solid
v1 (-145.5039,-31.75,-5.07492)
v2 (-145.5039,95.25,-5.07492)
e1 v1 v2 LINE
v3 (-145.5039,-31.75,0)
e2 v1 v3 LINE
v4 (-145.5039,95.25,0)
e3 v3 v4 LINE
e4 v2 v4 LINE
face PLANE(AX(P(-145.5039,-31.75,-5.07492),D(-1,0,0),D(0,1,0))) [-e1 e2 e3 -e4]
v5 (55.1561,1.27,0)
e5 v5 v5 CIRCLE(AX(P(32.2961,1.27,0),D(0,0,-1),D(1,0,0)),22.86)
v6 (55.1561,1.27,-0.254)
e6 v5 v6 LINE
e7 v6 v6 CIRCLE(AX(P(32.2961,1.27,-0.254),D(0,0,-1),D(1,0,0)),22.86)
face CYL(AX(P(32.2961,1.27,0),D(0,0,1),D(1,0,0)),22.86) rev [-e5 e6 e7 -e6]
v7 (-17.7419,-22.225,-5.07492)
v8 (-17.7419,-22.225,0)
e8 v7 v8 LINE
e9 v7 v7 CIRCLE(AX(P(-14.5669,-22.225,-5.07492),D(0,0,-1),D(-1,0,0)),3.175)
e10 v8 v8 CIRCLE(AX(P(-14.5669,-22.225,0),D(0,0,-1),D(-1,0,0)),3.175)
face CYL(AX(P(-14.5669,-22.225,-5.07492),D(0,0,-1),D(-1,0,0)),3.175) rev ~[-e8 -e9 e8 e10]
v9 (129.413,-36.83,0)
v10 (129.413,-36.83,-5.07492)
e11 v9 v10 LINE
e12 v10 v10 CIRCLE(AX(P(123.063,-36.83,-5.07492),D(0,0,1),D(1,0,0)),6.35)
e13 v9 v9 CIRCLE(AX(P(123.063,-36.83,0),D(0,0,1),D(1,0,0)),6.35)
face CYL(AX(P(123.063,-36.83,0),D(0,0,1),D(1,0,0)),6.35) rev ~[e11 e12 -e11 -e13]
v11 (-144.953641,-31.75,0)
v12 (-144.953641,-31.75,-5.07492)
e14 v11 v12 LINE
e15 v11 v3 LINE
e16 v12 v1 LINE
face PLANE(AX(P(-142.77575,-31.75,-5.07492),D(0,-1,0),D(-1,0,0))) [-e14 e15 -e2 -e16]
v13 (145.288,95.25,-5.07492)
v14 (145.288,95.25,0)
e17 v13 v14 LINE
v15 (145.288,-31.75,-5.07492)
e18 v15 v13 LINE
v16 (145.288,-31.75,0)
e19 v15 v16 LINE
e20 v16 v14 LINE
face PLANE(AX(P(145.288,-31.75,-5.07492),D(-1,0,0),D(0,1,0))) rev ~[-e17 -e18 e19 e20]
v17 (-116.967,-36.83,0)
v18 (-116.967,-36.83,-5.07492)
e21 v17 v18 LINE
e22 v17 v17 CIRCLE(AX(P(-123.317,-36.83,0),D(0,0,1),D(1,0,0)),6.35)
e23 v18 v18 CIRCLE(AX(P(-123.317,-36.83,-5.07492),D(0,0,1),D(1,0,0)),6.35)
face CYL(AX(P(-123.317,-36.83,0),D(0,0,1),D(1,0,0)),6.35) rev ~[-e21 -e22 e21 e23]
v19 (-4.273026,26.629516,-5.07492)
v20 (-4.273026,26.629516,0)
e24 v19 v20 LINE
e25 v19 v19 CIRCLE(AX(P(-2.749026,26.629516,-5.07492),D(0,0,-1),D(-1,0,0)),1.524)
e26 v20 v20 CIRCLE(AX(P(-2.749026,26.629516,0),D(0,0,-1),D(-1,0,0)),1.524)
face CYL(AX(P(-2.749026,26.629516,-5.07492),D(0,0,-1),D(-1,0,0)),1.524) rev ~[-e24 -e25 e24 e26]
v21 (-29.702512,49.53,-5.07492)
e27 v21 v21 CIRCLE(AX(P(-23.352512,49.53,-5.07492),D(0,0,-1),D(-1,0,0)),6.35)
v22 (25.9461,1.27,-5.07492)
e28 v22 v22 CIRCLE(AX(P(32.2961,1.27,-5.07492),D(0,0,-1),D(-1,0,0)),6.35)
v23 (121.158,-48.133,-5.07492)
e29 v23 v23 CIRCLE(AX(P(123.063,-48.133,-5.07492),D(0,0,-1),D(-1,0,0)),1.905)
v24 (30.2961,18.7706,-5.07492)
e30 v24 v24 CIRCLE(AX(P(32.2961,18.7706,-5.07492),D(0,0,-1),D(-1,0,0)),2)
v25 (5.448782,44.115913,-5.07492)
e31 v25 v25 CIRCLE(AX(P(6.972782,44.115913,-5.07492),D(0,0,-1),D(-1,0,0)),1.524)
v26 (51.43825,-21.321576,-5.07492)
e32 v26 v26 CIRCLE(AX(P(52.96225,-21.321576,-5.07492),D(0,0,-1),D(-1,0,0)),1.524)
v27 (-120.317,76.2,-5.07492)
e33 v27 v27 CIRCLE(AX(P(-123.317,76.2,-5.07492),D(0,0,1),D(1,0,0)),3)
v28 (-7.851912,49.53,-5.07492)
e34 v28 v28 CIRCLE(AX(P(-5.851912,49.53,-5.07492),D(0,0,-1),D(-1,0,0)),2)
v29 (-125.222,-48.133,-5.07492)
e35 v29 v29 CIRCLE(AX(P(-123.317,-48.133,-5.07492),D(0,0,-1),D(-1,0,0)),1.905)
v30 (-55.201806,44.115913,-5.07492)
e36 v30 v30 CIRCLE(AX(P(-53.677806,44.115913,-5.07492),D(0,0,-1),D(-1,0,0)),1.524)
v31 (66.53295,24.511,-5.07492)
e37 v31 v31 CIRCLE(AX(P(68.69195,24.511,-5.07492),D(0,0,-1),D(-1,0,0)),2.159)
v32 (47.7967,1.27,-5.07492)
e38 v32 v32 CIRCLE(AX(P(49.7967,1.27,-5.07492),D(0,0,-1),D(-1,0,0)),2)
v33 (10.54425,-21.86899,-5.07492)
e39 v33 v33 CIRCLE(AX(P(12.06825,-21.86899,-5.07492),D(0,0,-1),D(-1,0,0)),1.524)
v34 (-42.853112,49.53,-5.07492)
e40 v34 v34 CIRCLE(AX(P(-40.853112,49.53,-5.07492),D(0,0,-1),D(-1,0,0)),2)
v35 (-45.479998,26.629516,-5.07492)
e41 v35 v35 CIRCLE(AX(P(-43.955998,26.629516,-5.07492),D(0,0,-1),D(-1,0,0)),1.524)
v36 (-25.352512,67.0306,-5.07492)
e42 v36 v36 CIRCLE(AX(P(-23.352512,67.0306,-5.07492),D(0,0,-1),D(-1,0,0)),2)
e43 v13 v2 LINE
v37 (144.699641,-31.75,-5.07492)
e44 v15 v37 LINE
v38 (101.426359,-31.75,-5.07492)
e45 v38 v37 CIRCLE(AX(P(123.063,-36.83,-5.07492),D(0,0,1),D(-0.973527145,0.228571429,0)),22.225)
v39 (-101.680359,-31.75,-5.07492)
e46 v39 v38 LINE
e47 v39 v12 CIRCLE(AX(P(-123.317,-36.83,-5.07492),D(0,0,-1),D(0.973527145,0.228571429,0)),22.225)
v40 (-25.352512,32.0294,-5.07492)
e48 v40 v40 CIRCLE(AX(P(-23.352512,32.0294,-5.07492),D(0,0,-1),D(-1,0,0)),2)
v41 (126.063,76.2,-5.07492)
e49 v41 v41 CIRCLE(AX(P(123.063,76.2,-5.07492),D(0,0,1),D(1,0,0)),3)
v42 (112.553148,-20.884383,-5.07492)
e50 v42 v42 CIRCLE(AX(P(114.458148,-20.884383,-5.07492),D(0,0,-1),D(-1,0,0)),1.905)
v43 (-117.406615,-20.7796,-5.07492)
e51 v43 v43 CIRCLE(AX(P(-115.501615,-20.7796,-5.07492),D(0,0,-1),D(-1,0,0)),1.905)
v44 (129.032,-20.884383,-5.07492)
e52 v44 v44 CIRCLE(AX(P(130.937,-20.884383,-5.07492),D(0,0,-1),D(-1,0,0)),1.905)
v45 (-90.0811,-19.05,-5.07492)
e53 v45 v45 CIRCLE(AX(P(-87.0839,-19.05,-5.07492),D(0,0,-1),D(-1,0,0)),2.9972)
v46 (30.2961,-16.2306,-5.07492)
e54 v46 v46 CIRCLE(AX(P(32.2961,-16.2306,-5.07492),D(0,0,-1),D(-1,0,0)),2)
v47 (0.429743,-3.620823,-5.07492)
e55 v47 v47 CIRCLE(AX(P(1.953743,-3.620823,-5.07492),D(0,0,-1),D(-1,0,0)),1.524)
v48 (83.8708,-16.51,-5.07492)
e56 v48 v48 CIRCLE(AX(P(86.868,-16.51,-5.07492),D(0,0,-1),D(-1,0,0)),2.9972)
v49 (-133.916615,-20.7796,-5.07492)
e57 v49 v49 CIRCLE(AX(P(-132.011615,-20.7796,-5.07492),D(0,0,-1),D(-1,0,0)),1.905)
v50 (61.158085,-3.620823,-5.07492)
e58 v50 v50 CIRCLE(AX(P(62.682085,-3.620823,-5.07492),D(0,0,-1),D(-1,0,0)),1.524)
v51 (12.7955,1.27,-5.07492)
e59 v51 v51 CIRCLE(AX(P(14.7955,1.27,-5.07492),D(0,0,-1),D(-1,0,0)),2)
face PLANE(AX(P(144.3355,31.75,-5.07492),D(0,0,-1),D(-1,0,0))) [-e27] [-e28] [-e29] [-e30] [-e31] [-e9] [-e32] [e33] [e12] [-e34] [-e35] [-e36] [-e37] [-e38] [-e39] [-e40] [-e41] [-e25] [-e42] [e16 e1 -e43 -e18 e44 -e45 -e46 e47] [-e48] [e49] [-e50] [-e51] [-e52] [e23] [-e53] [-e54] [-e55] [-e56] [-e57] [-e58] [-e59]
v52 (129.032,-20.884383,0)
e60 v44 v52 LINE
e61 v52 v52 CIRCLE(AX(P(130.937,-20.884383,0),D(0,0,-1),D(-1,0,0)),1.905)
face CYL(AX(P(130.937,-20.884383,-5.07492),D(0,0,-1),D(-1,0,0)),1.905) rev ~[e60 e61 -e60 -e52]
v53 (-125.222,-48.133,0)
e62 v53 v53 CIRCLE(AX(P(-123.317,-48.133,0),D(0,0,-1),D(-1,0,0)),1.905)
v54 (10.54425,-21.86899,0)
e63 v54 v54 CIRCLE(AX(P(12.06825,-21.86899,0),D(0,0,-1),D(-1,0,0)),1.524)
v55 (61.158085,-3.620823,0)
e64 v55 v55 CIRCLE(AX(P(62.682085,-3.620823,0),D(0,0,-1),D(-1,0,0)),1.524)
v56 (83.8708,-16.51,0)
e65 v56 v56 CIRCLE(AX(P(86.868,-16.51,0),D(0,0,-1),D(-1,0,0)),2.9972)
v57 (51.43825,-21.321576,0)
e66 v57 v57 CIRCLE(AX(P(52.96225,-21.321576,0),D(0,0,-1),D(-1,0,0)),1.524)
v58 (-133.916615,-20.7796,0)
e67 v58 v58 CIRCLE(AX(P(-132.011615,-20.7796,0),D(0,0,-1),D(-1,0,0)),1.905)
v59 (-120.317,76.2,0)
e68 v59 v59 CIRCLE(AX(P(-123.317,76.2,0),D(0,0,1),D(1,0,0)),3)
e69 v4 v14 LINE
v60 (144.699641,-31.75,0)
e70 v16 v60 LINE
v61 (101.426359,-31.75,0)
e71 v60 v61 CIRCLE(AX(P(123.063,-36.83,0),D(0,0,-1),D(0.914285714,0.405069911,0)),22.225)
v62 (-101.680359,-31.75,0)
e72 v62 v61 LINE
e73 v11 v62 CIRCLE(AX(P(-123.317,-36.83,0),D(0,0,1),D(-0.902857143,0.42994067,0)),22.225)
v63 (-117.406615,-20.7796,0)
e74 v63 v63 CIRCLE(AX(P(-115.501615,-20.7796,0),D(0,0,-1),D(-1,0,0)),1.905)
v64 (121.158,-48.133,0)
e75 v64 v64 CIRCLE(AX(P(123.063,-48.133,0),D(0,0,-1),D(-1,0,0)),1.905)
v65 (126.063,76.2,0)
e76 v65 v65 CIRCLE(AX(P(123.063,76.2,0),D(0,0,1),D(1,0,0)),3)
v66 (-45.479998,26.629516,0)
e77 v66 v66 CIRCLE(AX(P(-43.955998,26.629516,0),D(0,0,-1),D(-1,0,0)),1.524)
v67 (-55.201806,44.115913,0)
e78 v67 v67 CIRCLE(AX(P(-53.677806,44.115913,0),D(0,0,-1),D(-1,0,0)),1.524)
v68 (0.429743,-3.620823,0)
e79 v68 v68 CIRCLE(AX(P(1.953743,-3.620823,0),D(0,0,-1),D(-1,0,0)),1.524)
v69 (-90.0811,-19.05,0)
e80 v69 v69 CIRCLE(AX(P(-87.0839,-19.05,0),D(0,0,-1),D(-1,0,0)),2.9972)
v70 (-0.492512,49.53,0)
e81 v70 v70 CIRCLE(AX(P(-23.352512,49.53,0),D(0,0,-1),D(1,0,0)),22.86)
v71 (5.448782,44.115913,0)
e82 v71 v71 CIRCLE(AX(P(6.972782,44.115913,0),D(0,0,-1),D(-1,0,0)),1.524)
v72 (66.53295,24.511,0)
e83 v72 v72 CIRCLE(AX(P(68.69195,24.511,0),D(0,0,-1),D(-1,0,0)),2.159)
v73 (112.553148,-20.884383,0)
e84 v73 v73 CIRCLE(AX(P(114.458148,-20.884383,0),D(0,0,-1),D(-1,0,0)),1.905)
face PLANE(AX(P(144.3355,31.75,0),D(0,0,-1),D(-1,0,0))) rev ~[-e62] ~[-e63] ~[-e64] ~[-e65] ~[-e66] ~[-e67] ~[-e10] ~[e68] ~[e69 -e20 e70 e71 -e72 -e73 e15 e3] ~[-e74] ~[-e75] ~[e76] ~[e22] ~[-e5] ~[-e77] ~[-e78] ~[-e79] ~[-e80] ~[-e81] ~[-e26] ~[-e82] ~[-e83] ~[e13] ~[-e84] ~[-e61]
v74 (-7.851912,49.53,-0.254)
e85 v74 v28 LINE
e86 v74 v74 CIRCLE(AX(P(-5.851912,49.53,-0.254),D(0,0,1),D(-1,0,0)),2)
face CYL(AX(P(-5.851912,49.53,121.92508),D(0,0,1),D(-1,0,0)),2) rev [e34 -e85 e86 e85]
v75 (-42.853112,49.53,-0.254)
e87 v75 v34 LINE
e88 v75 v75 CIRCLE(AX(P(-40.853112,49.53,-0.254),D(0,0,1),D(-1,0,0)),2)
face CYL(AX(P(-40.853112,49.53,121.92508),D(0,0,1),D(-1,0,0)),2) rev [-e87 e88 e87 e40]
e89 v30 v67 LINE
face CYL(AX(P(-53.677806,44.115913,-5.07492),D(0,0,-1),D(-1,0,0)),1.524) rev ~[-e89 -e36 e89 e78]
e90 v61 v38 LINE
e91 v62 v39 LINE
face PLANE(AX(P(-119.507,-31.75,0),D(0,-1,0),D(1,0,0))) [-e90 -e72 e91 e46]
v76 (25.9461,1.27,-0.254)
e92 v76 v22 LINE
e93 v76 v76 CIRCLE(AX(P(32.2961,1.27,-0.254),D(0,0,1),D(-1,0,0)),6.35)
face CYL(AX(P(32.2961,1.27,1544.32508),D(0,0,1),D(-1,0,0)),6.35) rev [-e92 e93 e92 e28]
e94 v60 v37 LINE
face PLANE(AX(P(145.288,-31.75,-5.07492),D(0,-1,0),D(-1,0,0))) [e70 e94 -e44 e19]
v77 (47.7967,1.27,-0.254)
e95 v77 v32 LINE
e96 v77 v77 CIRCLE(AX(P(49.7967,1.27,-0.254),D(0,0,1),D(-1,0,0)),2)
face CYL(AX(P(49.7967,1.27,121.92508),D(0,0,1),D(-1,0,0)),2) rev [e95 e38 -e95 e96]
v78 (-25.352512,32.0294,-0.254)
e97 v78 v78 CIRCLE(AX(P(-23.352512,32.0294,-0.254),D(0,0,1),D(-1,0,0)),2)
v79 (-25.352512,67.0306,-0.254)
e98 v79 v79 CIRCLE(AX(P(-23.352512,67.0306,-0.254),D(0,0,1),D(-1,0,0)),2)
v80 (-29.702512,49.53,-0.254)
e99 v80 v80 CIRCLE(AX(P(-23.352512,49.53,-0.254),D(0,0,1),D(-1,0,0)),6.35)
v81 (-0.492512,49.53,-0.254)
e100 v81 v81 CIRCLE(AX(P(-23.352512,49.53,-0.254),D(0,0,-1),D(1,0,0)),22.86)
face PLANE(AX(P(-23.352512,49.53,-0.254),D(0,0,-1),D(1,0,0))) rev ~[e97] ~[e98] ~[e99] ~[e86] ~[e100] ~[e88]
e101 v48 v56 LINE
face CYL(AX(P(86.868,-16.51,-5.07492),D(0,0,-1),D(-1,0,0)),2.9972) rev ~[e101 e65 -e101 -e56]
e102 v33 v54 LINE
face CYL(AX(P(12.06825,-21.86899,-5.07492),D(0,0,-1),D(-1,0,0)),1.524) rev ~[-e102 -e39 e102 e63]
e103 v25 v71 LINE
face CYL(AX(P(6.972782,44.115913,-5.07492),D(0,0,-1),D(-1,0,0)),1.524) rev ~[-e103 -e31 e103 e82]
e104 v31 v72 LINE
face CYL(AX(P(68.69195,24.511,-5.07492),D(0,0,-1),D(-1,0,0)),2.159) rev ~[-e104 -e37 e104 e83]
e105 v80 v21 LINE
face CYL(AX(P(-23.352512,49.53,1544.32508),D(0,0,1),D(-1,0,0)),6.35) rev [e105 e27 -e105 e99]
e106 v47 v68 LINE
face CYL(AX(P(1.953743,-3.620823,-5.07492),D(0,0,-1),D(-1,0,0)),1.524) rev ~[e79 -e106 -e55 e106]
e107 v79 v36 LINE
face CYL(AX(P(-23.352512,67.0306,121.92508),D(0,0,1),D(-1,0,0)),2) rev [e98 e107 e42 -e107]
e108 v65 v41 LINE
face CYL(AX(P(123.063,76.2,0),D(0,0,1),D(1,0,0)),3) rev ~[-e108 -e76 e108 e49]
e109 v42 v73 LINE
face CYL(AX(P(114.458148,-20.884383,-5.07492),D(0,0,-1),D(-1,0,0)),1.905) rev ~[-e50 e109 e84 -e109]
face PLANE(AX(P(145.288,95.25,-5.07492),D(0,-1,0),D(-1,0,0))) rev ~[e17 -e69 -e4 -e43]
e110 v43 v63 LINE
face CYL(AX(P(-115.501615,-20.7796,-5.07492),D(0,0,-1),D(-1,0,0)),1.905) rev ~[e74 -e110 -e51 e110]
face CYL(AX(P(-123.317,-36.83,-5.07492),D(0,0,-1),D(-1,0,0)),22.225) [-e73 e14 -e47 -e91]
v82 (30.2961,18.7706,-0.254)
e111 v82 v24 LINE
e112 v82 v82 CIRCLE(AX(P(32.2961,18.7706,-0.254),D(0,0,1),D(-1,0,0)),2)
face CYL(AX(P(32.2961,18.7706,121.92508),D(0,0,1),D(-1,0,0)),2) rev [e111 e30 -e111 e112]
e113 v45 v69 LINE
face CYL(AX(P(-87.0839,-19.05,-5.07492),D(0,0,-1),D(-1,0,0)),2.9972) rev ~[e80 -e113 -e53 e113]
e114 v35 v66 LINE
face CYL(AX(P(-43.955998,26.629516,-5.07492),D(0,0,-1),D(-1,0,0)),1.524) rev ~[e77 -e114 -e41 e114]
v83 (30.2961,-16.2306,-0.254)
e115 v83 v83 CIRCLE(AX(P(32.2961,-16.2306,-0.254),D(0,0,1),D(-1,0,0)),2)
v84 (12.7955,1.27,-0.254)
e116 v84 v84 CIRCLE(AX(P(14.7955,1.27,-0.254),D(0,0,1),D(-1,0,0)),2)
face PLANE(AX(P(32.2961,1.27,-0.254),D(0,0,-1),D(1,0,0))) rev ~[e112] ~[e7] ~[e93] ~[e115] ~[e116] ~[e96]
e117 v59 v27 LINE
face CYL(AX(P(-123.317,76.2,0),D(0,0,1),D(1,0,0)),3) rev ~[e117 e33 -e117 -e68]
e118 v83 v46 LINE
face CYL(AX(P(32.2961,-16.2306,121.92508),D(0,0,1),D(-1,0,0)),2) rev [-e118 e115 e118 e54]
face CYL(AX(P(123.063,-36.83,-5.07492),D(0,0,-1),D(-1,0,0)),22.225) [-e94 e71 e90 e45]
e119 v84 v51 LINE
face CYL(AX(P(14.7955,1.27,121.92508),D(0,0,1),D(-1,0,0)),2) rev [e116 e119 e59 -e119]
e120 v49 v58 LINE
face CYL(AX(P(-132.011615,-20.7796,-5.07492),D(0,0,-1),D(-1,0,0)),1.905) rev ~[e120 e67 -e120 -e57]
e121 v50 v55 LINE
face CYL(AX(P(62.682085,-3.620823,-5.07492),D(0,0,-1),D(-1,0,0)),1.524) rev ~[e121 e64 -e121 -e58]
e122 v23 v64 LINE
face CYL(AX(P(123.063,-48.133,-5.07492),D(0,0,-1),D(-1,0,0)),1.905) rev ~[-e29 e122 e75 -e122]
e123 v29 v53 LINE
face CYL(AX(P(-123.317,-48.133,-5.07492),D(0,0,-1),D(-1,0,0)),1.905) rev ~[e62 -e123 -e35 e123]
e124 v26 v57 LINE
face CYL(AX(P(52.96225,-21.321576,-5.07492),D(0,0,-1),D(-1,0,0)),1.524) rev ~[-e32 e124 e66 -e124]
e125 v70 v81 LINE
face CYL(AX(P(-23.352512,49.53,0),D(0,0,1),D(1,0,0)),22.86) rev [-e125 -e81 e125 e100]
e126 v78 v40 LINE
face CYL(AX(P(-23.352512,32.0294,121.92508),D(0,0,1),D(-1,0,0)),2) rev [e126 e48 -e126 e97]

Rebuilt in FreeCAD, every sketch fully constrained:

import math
import FreeCAD as App
import Part
import Sketcher
Q = App.Units.Quantity


def add_polygon(sketch, points):
    """Adds a closed chain of lines whose ends are joined by coincident constraints."""
    first, n = sketch.GeometryCount, len(points)
    for a, b in zip(points, points[1:] + points[:1]):
        sketch.addGeometry(Part.LineSegment(App.Vector(*a, 0), App.Vector(*b, 0)), False)
    for i in range(n):
        sketch.addConstraint(Sketcher.Constraint("Coincident", first + i, 2, first + (i + 1) % n, 1))

doc = App.newDocument("Part")
params = doc.addObject("Spreadsheet::Sheet", "Params")
for row, (alias, value) in enumerate([
    ("sketch1_height", "5 in"),
    ("sketch1_radius", "0.25 in"),
    ("sketch1_width", "9.4 in"),
    ("sketch1_width2", "0.64 in"),
    ("sketch1_width3", "0.65 in"),
    ("pad1_length", "0.1998 in"),
    ("sketch2_diameter", "1.75 in"),
    ("pad2_length", "0.1998 in"),
    ("sketch3_diameter", "0.5 in"),
    ("pocket1_length", "0.22 in"),
    ("sketch4_height", "5 in"),
    ("pad3_length", "0.1998 in"),
    ("sketch5_height", "5 in"),
    ("sketch5_width", "0.075 in"),
    ("pad4_length", "0.1998 in"),
    ("pocket2_length", "15.75 in"),
    ("sketch7_diameter", "1.8 in"),
    ("sketch7_diameter2", "0.5 in"),
    ("pocket3_length", "0.01 in"),
    ("pocket4_length", "5 in"),
    ("sketch9_diameter", "0.236 in"),
    ("pocket5_length", "6 in"),
    ("sketch10_diameter", "0.5 in"),
    ("pocket6_length", "61 in"),
    ("sketch11_diameter", "0.25 in"),
    ("sketch11_diameter2", "0.17 in"),
    ("sketch11_diameter3", "0.12 in"),
    ("pocket7_length", "0.25 in"),
    ("sketch12_diameter", "0.15 in"),
    ("pocket8_length", "0.25 in"),
], start=1):
    params.set(f"A{row}", alias)
    params.set(f"B{row}", "=" + value)
    params.setAlias(f"B{row}", alias)

body = doc.addObject("PartDesign::Body", "Body")

sketch1 = body.newObject("Sketcher::SketchObject", "Sketch")
sketch1.AttachmentSupport = (doc.getObject("XY_Plane"), [""])
sketch1.MapMode = "FlatFace"
sketch1.addGeometry([
    Part.LineSegment(App.Vector(-143.383, -31.75, 0), App.Vector(-127.127, -31.75, 0)),
    Part.ArcOfCircle(Part.Circle(App.Vector(-123.317, -36.83, 0), App.Vector(0, 0, 1), 6.35), math.radians(53.130102), math.radians(126.869898)),
    Part.LineSegment(App.Vector(-119.507, -31.75, 0), App.Vector(119.253, -31.75, 0)),
    Part.ArcOfCircle(Part.Circle(App.Vector(123.063, -36.83, 0), App.Vector(0, 0, 1), 6.35), math.radians(53.130102), math.radians(126.869898)),
    Part.LineSegment(App.Vector(126.873, -31.75, 0), App.Vector(143.383, -31.75, 0)),
    Part.LineSegment(App.Vector(143.383, -31.75, 0), App.Vector(143.383, 95.25, 0)),
    Part.LineSegment(App.Vector(143.383, 95.25, 0), App.Vector(-143.383, 95.25, 0)),
    Part.LineSegment(App.Vector(-143.383, 95.25, 0), App.Vector(-143.383, -31.75, 0)),
], False)
sketch1.addConstraint([
    Sketcher.Constraint("Coincident", 0, 2, 1, 2),
    Sketcher.Constraint("Coincident", 1, 1, 2, 1),
    Sketcher.Constraint("Coincident", 2, 2, 3, 2),
    Sketcher.Constraint("Coincident", 3, 1, 4, 1),
    Sketcher.Constraint("Coincident", 4, 2, 5, 1),
    Sketcher.Constraint("Coincident", 5, 2, 6, 1),
    Sketcher.Constraint("Coincident", 6, 2, 7, 1),
    Sketcher.Constraint("Coincident", 7, 2, 0, 1),
    Sketcher.Constraint("Horizontal", 0),
    Sketcher.Constraint("Horizontal", 2),
    Sketcher.Constraint("Horizontal", 4),
    Sketcher.Constraint("Vertical", 5),
    Sketcher.Constraint("Horizontal", 6),
    Sketcher.Constraint("Vertical", 7),
    Sketcher.Constraint("Equal", 1, 3),
    Sketcher.Constraint("Symmetric", 4, 2, 7, 2, -2),
    Sketcher.Constraint("Horizontal", 1, 3, 3, 3),
    Sketcher.Constraint("Horizontal", 0, 2, 1, 1),
    Sketcher.Constraint("DistanceY", 5, 1, 5, 2, Q("5 in")),
    Sketcher.Constraint("Radius", 1, Q("0.25 in")),
    Sketcher.Constraint("DistanceX", 2, 1, 2, 2, Q("9.4 in")),
    Sketcher.Constraint("DistanceX", 0, 2, 3, 1, Q("10 in")),
    Sketcher.Constraint("DistanceX", 0, 1, 0, 2, Q("0.64 in")),
    Sketcher.Constraint("DistanceX", 4, 1, 4, 2, Q("0.65 in")),
    Sketcher.Constraint("DistanceY", 1, 3, -1, 1, Q("1.45 in")),
])
sketch1.setExpression("Constraints[18]", "Params.sketch1_height")
sketch1.setExpression("Constraints[19]", "Params.sketch1_radius")
sketch1.setExpression("Constraints[20]", "Params.sketch1_width")
sketch1.setExpression("Constraints[22]", "Params.sketch1_width2")
sketch1.setExpression("Constraints[23]", "Params.sketch1_width3")
pad1 = body.newObject("PartDesign::Pad", "Pad")
pad1.Profile = sketch1
pad1.setExpression("Length", "Params.pad1_length")
pad1.Reversed = True

sketch2 = body.newObject("Sketcher::SketchObject", "Sketch001")
sketch2.AttachmentSupport = (doc.getObject("XY_Plane"), [""])
sketch2.MapMode = "FlatFace"
sketch2.AttachmentOffset = App.Placement(App.Vector(0, 0, -0.1998 * 25.4), App.Rotation())
sketch2.addGeometry([
    Part.Circle(App.Vector(123.063, -36.83, 0), App.Vector(0, 0, 1), 22.225),
    Part.Circle(App.Vector(-123.317, -36.83, 0), App.Vector(0, 0, 1), 22.225),
], False)
sketch2.addConstraint([
    Sketcher.Constraint("Equal", 0, 1),
    Sketcher.Constraint("Horizontal", 0, 3, 1, 3),
    Sketcher.Constraint("Diameter", 0, Q("1.75 in")),
    Sketcher.Constraint("DistanceX", 1, 3, 0, 3, Q("9.7 in")),
    Sketcher.Constraint("DistanceY", 0, 3, -1, 1, Q("1.45 in")),
    Sketcher.Constraint("DistanceX", -1, 1, 0, 3, Q("4.845 in")),
])
sketch2.setExpression("Constraints[2]", "Params.sketch2_diameter")
pad2 = body.newObject("PartDesign::Pad", "Pad001")
pad2.Profile = sketch2
pad2.setExpression("Length", "Params.pad2_length")

sketch3 = body.newObject("Sketcher::SketchObject", "Sketch002")
sketch3.AttachmentSupport = (doc.getObject("XY_Plane"), [""])
sketch3.MapMode = "FlatFace"
sketch3.addGeometry([
    Part.Circle(App.Vector(-123.317, -36.83, 0), App.Vector(0, 0, 1), 6.35),
    Part.Circle(App.Vector(123.063, -36.83, 0), App.Vector(0, 0, 1), 6.35),
], False)
sketch3.addConstraint([
    Sketcher.Constraint("Equal", 0, 1),
    Sketcher.Constraint("Horizontal", 0, 3, 1, 3),
    Sketcher.Constraint("Diameter", 0, Q("0.5 in")),
    Sketcher.Constraint("DistanceX", 0, 3, 1, 3, Q("9.7 in")),
    Sketcher.Constraint("DistanceY", 0, 3, -1, 1, Q("1.45 in")),
    Sketcher.Constraint("DistanceX", 0, 3, -1, 1, Q("4.855 in")),
])
sketch3.setExpression("Constraints[2]", "Params.sketch3_diameter")
pocket1 = body.newObject("PartDesign::Pocket", "Pocket")
pocket1.Profile = sketch3
pocket1.setExpression("Length", "Params.pocket1_length")

sketch4 = body.newObject("Sketcher::SketchObject", "Sketch003")
sketch4.AttachmentSupport = (doc.getObject("XY_Plane"), [""])
sketch4.MapMode = "FlatFace"
sketch4.AttachmentOffset = App.Placement(App.Vector(0, 0, -0.1998 * 25.4), App.Rotation())
add_polygon(sketch4, [(-142.77575, 95.25), (-142.77575, -31.75), (-145.5039, -31.75), (-145.5039, 95.25)])
sketch4.addConstraint([
    Sketcher.Constraint("Vertical", 0),
    Sketcher.Constraint("Horizontal", 1),
    Sketcher.Constraint("Vertical", 2),
    Sketcher.Constraint("Horizontal", 3),
    Sketcher.Constraint("DistanceY", 0, 2, 0, 1, Q("5 in")),
    Sketcher.Constraint("DistanceY", 0, 2, -1, 1, Q("1.25 in")),
    Sketcher.Constraint("DistanceX", 1, 2, -1, 1, Q("5.7285 in")),
    Sketcher.Constraint("DistanceX", 1, 2, 1, 1, 2.72815),
])
sketch4.setExpression("Constraints[8]", "Params.sketch4_height")
pad3 = body.newObject("PartDesign::Pad", "Pad002")
pad3.Profile = sketch4
pad3.setExpression("Length", "Params.pad3_length")

sketch5 = body.newObject("Sketcher::SketchObject", "Sketch004")
sketch5.AttachmentSupport = (doc.getObject("XY_Plane"), [""])
sketch5.MapMode = "FlatFace"
sketch5.AttachmentOffset = App.Placement(App.Vector(0, 0, -0.1998 * 25.4), App.Rotation())
add_polygon(sketch5, [(145.288, 95.25), (145.288, -31.75), (143.383, -31.75), (143.383, 95.25)])
sketch5.addConstraint([
    Sketcher.Constraint("Vertical", 0),
    Sketcher.Constraint("Horizontal", 1),
    Sketcher.Constraint("Vertical", 2),
    Sketcher.Constraint("Horizontal", 3),
    Sketcher.Constraint("DistanceY", 0, 2, 0, 1, Q("5 in")),
    Sketcher.Constraint("DistanceX", 1, 2, 1, 1, Q("0.075 in")),
    Sketcher.Constraint("DistanceX", -1, 1, 0, 2, Q("5.72 in")),
    Sketcher.Constraint("DistanceY", 0, 2, -1, 1, Q("1.25 in")),
])
sketch5.setExpression("Constraints[8]", "Params.sketch5_height")
sketch5.setExpression("Constraints[9]", "Params.sketch5_width")
pad4 = body.newObject("PartDesign::Pad", "Pad003")
pad4.Profile = sketch5
pad4.setExpression("Length", "Params.pad4_length")

sketch6 = body.newObject("Sketcher::SketchObject", "Sketch005")
sketch6.AttachmentSupport = (doc.getObject("XY_Plane"), [""])
sketch6.MapMode = "FlatFace"
sketch6.addGeometry([
    Part.Circle(App.Vector(-123.317, 76.2, 0), App.Vector(0, 0, 1), 3),
    Part.Circle(App.Vector(123.063, 76.2, 0), App.Vector(0, 0, 1), 3),
], False)
sketch6.addConstraint([
    Sketcher.Constraint("Equal", 0, 1),
    Sketcher.Constraint("Horizontal", 0, 3, 1, 3),
    Sketcher.Constraint("DistanceY", -1, 1, 0, 3, Q("3 in")),
    Sketcher.Constraint("DistanceX", 0, 3, 1, 3, Q("9.7 in")),
    Sketcher.Constraint("Diameter", 0, 6.0),
    Sketcher.Constraint("DistanceX", 0, 3, -1, 1, Q("4.855 in")),
])
pocket2 = body.newObject("PartDesign::Pocket", "Pocket001")
pocket2.Profile = sketch6
pocket2.setExpression("Length", "Params.pocket2_length")

sketch7 = body.newObject("Sketcher::SketchObject", "Sketch006")
sketch7.AttachmentSupport = (doc.getObject("XY_Plane"), [""])
sketch7.MapMode = "FlatFace"
sketch7.addGeometry([
    Part.Circle(App.Vector(-23.352512, 49.53, 0), App.Vector(0, 0, 1), 22.86),
    Part.Circle(App.Vector(-40.853112, 49.53, 0), App.Vector(0, 0, 1), 2),
    Part.Circle(App.Vector(-23.352512, 67.0306, 0), App.Vector(0, 0, 1), 2),
    Part.Circle(App.Vector(-23.352512, 49.53, 0), App.Vector(0, 0, 1), 6.35),
    Part.Circle(App.Vector(-5.851912, 49.53, 0), App.Vector(0, 0, 1), 2),
    Part.Circle(App.Vector(-23.352512, 32.0294, 0), App.Vector(0, 0, 1), 2),
    Part.Circle(App.Vector(32.2961, 1.27, 0), App.Vector(0, 0, 1), 22.86),
    Part.Circle(App.Vector(32.2961, 18.7706, 0), App.Vector(0, 0, 1), 2),
    Part.Circle(App.Vector(14.7955, 1.27, 0), App.Vector(0, 0, 1), 2),
    Part.Circle(App.Vector(32.2961, 1.27, 0), App.Vector(0, 0, 1), 6.35),
    Part.Circle(App.Vector(49.7967, 1.27, 0), App.Vector(0, 0, 1), 2),
    Part.Circle(App.Vector(32.2961, -16.2306, 0), App.Vector(0, 0, 1), 2),
], False)
sketch7.addConstraint([
    Sketcher.Constraint("Coincident", 3, 3, 0, 3),
    Sketcher.Constraint("Coincident", 9, 3, 6, 3),
    Sketcher.Constraint("Equal", 1, 2),
    Sketcher.Constraint("Equal", 2, 4),
    Sketcher.Constraint("Equal", 4, 5),
    Sketcher.Constraint("Equal", 0, 6),
    Sketcher.Constraint("Equal", 5, 7),
    Sketcher.Constraint("Equal", 7, 8),
    Sketcher.Constraint("Equal", 3, 9),
    Sketcher.Constraint("Equal", 8, 10),
    Sketcher.Constraint("Equal", 10, 11),
    Sketcher.Constraint("Horizontal", 0, 3, 1, 3),
    Sketcher.Constraint("Horizontal", 3, 3, 4, 3),
    Sketcher.Constraint("Horizontal", 6, 3, 8, 3),
    Sketcher.Constraint("Horizontal", 9, 3, 10, 3),
    Sketcher.Constraint("Vertical", 0, 3, 2, 3),
    Sketcher.Constraint("Vertical", 3, 3, 5, 3),
    Sketcher.Constraint("Vertical", 6, 3, 7, 3),
    Sketcher.Constraint("Vertical", 9, 3, 11, 3),
    Sketcher.Constraint("Diameter", 0, Q("1.8 in")),
    Sketcher.Constraint("Diameter", 3, Q("0.5 in")),
    Sketcher.Constraint("DistanceY", 6, 3, 4, 3, Q("1.9 in")),
    Sketcher.Constraint("Diameter", 1, 4.0),
    Sketcher.Constraint("DistanceY", -1, 1, 0, 3, Q("1.95 in")),
    Sketcher.Constraint("DistanceY", -1, 1, 2, 3, Q("2.639 in")),
    Sketcher.Constraint("DistanceY", -1, 1, 5, 3, Q("1.261 in")),
    Sketcher.Constraint("DistanceY", -1, 1, 7, 3, Q("0.739 in")),
    Sketcher.Constraint("DistanceY", 11, 3, -1, 1, Q("0.639 in")),
    Sketcher.Constraint("DistanceX", 1, 3, 0, 3, Q("0.689 in")),
    Sketcher.Constraint("DistanceX", 0, 3, 4, 3, Q("0.689 in")),
    Sketcher.Constraint("DistanceX", 8, 3, 6, 3, Q("0.689 in")),
    Sketcher.Constraint("DistanceX", 6, 3, 10, 3, Q("0.689 in")),
    Sketcher.Constraint("DistanceX", -1, 1, 6, 3, Q("1.2715 in")),
    Sketcher.Constraint("DistanceX", 0, 3, -1, 1, 23.352512),
])
sketch7.setExpression("Constraints[19]", "Params.sketch7_diameter")
sketch7.setExpression("Constraints[20]", "Params.sketch7_diameter2")
pocket3 = body.newObject("PartDesign::Pocket", "Pocket002")
pocket3.Profile = sketch7
pocket3.setExpression("Length", "Params.pocket3_length")

sketch8 = body.newObject("Sketcher::SketchObject", "Sketch007")
sketch8.AttachmentSupport = (doc.getObject("XY_Plane"), [""])
sketch8.MapMode = "FlatFace"
sketch8.AttachmentOffset = App.Placement(App.Vector(0, 0, 4.8002 * 25.4), App.Rotation())
sketch8.addGeometry([
    Part.Circle(App.Vector(32.2961, 18.7706, 0), App.Vector(0, 0, 1), 2),
    Part.Circle(App.Vector(49.7967, 1.27, 0), App.Vector(0, 0, 1), 2),
    Part.Circle(App.Vector(14.7955, 1.27, 0), App.Vector(0, 0, 1), 2),
    Part.Circle(App.Vector(32.2961, -16.2306, 0), App.Vector(0, 0, 1), 2),
    Part.Circle(App.Vector(-23.352512, 32.0294, 0), App.Vector(0, 0, 1), 2),
    Part.Circle(App.Vector(-23.352512, 67.0306, 0), App.Vector(0, 0, 1), 2),
    Part.Circle(App.Vector(-40.853112, 49.53, 0), App.Vector(0, 0, 1), 2),
    Part.Circle(App.Vector(-5.851912, 49.53, 0), App.Vector(0, 0, 1), 2),
], False)
sketch8.addConstraint([
    Sketcher.Constraint("Equal", 0, 1),
    Sketcher.Constraint("Equal", 1, 2),
    Sketcher.Constraint("Equal", 2, 3),
    Sketcher.Constraint("Equal", 3, 4),
    Sketcher.Constraint("Equal", 4, 5),
    Sketcher.Constraint("Equal", 5, 6),
    Sketcher.Constraint("Equal", 6, 7),
    Sketcher.Constraint("Horizontal", 1, 3, 2, 3),
    Sketcher.Constraint("Horizontal", 6, 3, 7, 3),
    Sketcher.Constraint("Vertical", 0, 3, 3, 3),
    Sketcher.Constraint("Vertical", 4, 3, 5, 3),
    Sketcher.Constraint("DistanceY", 3, 3, 4, 3, Q("1.9 in")),
    Sketcher.Constraint("DistanceY", 0, 3, 5, 3, Q("1.9 in")),
    Sketcher.Constraint("DistanceY", 2, 3, 6, 3, Q("1.9 in")),
    Sketcher.Constraint("Diameter", 0, 4.0),
    Sketcher.Constraint("DistanceY", -1, 1, 1, 3, Q("0.05 in")),
    Sketcher.Constraint("DistanceY", -1, 1, 0, 3, Q("0.739 in")),
    Sketcher.Constraint("DistanceY", 3, 3, -1, 1, Q("0.639 in")),
    Sketcher.Constraint("DistanceX", 0, 3, 1, 3, Q("0.689 in")),
    Sketcher.Constraint("DistanceX", 2, 3, 0, 3, Q("0.689 in")),
    Sketcher.Constraint("DistanceX", 6, 3, 4, 3, Q("0.689 in")),
    Sketcher.Constraint("DistanceX", 4, 3, 7, 3, Q("0.689 in")),
    Sketcher.Constraint("DistanceX", -1, 1, 0, 3, Q("1.2715 in")),
    Sketcher.Constraint("DistanceX", 4, 3, -1, 1, 23.352512),
])
pocket4 = body.newObject("PartDesign::Pocket", "Pocket003")
pocket4.Profile = sketch8
pocket4.setExpression("Length", "Params.pocket4_length")

sketch9 = body.newObject("Sketcher::SketchObject", "Sketch008")
sketch9.AttachmentSupport = (doc.getObject("XY_Plane"), [""])
sketch9.MapMode = "FlatFace"
sketch9.AttachmentOffset = App.Placement(App.Vector(0, 0, -0.1998 * 25.4), App.Rotation())
sketch9.addGeometry([
    Part.Circle(App.Vector(-87.0839, -19.05, 0), App.Vector(0, 0, 1), 2.9972),
    Part.Circle(App.Vector(86.868, -16.51, 0), App.Vector(0, 0, 1), 2.9972),
], False)
sketch9.addConstraint([
    Sketcher.Constraint("Equal", 0, 1),
    Sketcher.Constraint("Diameter", 0, Q("0.236 in")),
    Sketcher.Constraint("DistanceY", 0, 3, 1, 3, Q("0.1 in")),
    Sketcher.Constraint("DistanceY", 0, 3, -1, 1, Q("0.75 in")),
    Sketcher.Constraint("DistanceX", -1, 1, 1, 3, Q("3.42 in")),
    Sketcher.Constraint("DistanceX", 0, 3, -1, 1, Q("3.4285 in")),
])
sketch9.setExpression("Constraints[1]", "Params.sketch9_diameter")
pocket5 = body.newObject("PartDesign::Pocket", "Pocket004")
pocket5.Profile = sketch9
pocket5.setExpression("Length", "Params.pocket5_length")
pocket5.Reversed = True

sketch10 = body.newObject("Sketcher::SketchObject", "Sketch009")
sketch10.AttachmentSupport = (doc.getObject("XY_Plane"), [""])
sketch10.MapMode = "FlatFace"
sketch10.AttachmentOffset = App.Placement(App.Vector(0, 0, 60.8002 * 25.4), App.Rotation())
sketch10.addGeometry([
    Part.Circle(App.Vector(32.2961, 1.27, 0), App.Vector(0, 0, 1), 6.35),
    Part.Circle(App.Vector(-23.352512, 49.53, 0), App.Vector(0, 0, 1), 6.35),
], False)
sketch10.addConstraint([
    Sketcher.Constraint("Equal", 0, 1),
    Sketcher.Constraint("Diameter", 0, Q("0.5 in")),
    Sketcher.Constraint("DistanceY", 0, 3, 1, 3, Q("1.9 in")),
    Sketcher.Constraint("DistanceY", -1, 1, 0, 3, Q("0.05 in")),
    Sketcher.Constraint("DistanceX", -1, 1, 0, 3, Q("1.2715 in")),
    Sketcher.Constraint("DistanceX", 1, 3, -1, 1, 23.352512),
])
sketch10.setExpression("Constraints[1]", "Params.sketch10_diameter")
pocket6 = body.newObject("PartDesign::Pocket", "Pocket005")
pocket6.Profile = sketch10
pocket6.setExpression("Length", "Params.pocket6_length")

sketch11 = body.newObject("Sketcher::SketchObject", "Sketch010")
sketch11.AttachmentSupport = (doc.getObject("XY_Plane"), [""])
sketch11.MapMode = "FlatFace"
sketch11.AttachmentOffset = App.Placement(App.Vector(0, 0, -0.1998 * 25.4), App.Rotation())
sketch11.addGeometry([
    Part.Circle(App.Vector(-14.5669, -22.225, 0), App.Vector(0, 0, 1), 3.175),
    Part.Circle(App.Vector(68.69195, 24.511, 0), App.Vector(0, 0, 1), 2.159),
    Part.Circle(App.Vector(62.682085, -3.620823, 0), App.Vector(0, 0, 1), 1.524),
    Part.Circle(App.Vector(1.953743, -3.620823, 0), App.Vector(0, 0, 1), 1.524),
    Part.Circle(App.Vector(12.06825, -21.86899, 0), App.Vector(0, 0, 1), 1.524),
    Part.Circle(App.Vector(52.96225, -21.321576, 0), App.Vector(0, 0, 1), 1.524),
    Part.Circle(App.Vector(6.972782, 44.115913, 0), App.Vector(0, 0, 1), 1.524),
    Part.Circle(App.Vector(-2.749026, 26.629516, 0), App.Vector(0, 0, 1), 1.524),
    Part.Circle(App.Vector(-43.955998, 26.629516, 0), App.Vector(0, 0, 1), 1.524),
    Part.Circle(App.Vector(-53.677806, 44.115913, 0), App.Vector(0, 0, 1), 1.524),
], False)
sketch11.addConstraint([
    Sketcher.Constraint("Equal", 2, 3),
    Sketcher.Constraint("Equal", 3, 4),
    Sketcher.Constraint("Equal", 4, 5),
    Sketcher.Constraint("Equal", 5, 6),
    Sketcher.Constraint("Equal", 6, 7),
    Sketcher.Constraint("Equal", 7, 8),
    Sketcher.Constraint("Equal", 8, 9),
    Sketcher.Constraint("Horizontal", 2, 3, 3, 3),
    Sketcher.Constraint("Horizontal", 7, 3, 8, 3),
    Sketcher.Constraint("Horizontal", 6, 3, 9, 3),
    Sketcher.Constraint("Diameter", 0, Q("0.25 in")),
    Sketcher.Constraint("Diameter", 1, Q("0.17 in")),
    Sketcher.Constraint("Diameter", 2, Q("0.12 in")),
    Sketcher.Constraint("DistanceY", 0, 3, 1, 3, Q("1.84 in")),
    Sketcher.Constraint("DistanceX", 4, 3, 5, 3, Q("1.61 in")),
    Sketcher.Constraint("DistanceY", 0, 3, -1, 1, Q("0.875 in")),
    Sketcher.Constraint("DistanceX", 0, 3, -1, 1, Q("0.5735 in")),
    Sketcher.Constraint("DistanceX", 3, 3, 6, 3, Q("0.1976 in")),
    Sketcher.Constraint("DistanceX", 4, 3, 1, 3, 56.6237),
    Sketcher.Constraint("DistanceX", -1, 1, 1, 3, 68.69195),
    Sketcher.Constraint("DistanceY", 4, 3, -1, 1, 21.86899),
    Sketcher.Constraint("DistanceX", 3, 3, 2, 3, 60.728342),
    Sketcher.Constraint("DistanceX", 6, 3, 4, 3, 5.095468),
    Sketcher.Constraint("DistanceX", 7, 3, 6, 3, 9.721808),
    Sketcher.Constraint("DistanceY", 3, 3, 7, 3, 30.250338),
    Sketcher.Constraint("DistanceX", 8, 3, 7, 3, 41.206971),
    Sketcher.Constraint("DistanceX", 9, 3, 8, 3, 9.721808),
    Sketcher.Constraint("DistanceY", 2, 3, -1, 1, 3.620823),
    Sketcher.Constraint("DistanceY", 5, 3, -1, 1, 21.321576),
    Sketcher.Constraint("DistanceY", -1, 1, 6, 3, 44.115913),
])
sketch11.setExpression("Constraints[10]", "Params.sketch11_diameter")
sketch11.setExpression("Constraints[11]", "Params.sketch11_diameter2")
sketch11.setExpression("Constraints[12]", "Params.sketch11_diameter3")
pocket7 = body.newObject("PartDesign::Pocket", "Pocket006")
pocket7.Profile = sketch11
pocket7.setExpression("Length", "Params.pocket7_length")
pocket7.Reversed = True

sketch12 = body.newObject("Sketcher::SketchObject", "Sketch011")
sketch12.AttachmentSupport = (doc.getObject("XY_Plane"), [""])
sketch12.MapMode = "FlatFace"
sketch12.AttachmentOffset = App.Placement(App.Vector(0, 0, -0.1998 * 25.4), App.Rotation())
sketch12.addGeometry([
    Part.Circle(App.Vector(130.937, -20.884383, 0), App.Vector(0, 0, 1), 1.905),
    Part.Circle(App.Vector(114.458148, -20.884383, 0), App.Vector(0, 0, 1), 1.905),
    Part.Circle(App.Vector(123.063, -48.133, 0), App.Vector(0, 0, 1), 1.905),
    Part.Circle(App.Vector(-115.501615, -20.7796, 0), App.Vector(0, 0, 1), 1.905),
    Part.Circle(App.Vector(-132.011615, -20.7796, 0), App.Vector(0, 0, 1), 1.905),
    Part.Circle(App.Vector(-123.317, -48.133, 0), App.Vector(0, 0, 1), 1.905),
], False)
sketch12.addConstraint([
    Sketcher.Constraint("Equal", 0, 1),
    Sketcher.Constraint("Equal", 1, 2),
    Sketcher.Constraint("Equal", 2, 3),
    Sketcher.Constraint("Equal", 3, 4),
    Sketcher.Constraint("Equal", 4, 5),
    Sketcher.Constraint("Horizontal", 0, 3, 1, 3),
    Sketcher.Constraint("Horizontal", 3, 3, 4, 3),
    Sketcher.Constraint("Horizontal", 2, 3, 5, 3),
    Sketcher.Constraint("Diameter", 0, Q("0.15 in")),
    Sketcher.Constraint("DistanceX", 5, 3, 2, 3, Q("9.7 in")),
    Sketcher.Constraint("DistanceX", 2, 3, 0, 3, Q("0.31 in")),
    Sketcher.Constraint("DistanceX", 4, 3, 3, 3, Q("0.65 in")),
    Sketcher.Constraint("DistanceX", -1, 1, 0, 3, Q("5.155 in")),
    Sketcher.Constraint("DistanceY", 2, 3, -1, 1, Q("1.895 in")),
    Sketcher.Constraint("DistanceY", 3, 3, -1, 1, 20.7796),
    Sketcher.Constraint("DistanceY", 0, 3, -1, 1, 20.884383),
    Sketcher.Constraint("DistanceX", -1, 1, 1, 3, 114.458148),
    Sketcher.Constraint("DistanceX", 3, 3, -1, 1, 115.501615),
])
sketch12.setExpression("Constraints[8]", "Params.sketch12_diameter")
pocket8 = body.newObject("PartDesign::Pocket", "Pocket007")
pocket8.Profile = sketch12
pocket8.setExpression("Length", "Params.pocket8_length")
pocket8.Reversed = True

doc.recompute()
